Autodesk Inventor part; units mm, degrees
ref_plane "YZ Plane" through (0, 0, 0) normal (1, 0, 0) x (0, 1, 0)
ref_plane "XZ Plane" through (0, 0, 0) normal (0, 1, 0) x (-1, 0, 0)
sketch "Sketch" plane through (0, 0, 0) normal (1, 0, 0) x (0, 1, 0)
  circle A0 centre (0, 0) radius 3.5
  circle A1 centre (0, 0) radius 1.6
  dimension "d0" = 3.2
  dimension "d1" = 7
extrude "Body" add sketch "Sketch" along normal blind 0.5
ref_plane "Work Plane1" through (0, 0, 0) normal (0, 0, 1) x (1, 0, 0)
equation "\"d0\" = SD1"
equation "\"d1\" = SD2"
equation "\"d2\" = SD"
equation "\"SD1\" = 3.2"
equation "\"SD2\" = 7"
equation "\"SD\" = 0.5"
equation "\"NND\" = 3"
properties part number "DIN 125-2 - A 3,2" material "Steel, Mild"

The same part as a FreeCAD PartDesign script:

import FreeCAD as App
import Part
import Sketcher

V = App.Vector

doc = App.newDocument("Part")
body = doc.addObject("PartDesign::Body", "Body")

# Sketch on YZ plane
sketch1 = body.newObject("Sketcher::SketchObject", "Sketch")
sketch1.AttachmentSupport = (doc.getObject("YZ_Plane"), [""])
sketch1.MapMode = "FlatFace"
sketch1.addGeometry([
    Part.Circle(V(0, 0, 0), V(0, 0, 1), 3.5),
    Part.Circle(V(0, 0, 0), V(0, 0, 1), 1.6),
], False)
sketch1.addConstraint([
    Sketcher.Constraint("Coincident", 0, 3, -1, 1),
    Sketcher.Constraint("Coincident", 1, 3, -1, 1),
    Sketcher.Constraint("Diameter", 0, 7.0),
    Sketcher.Constraint("Diameter", 1, 3.2),
])
pad1 = body.newObject("PartDesign::Pad", "Pad")
pad1.Profile = sketch1
pad1.Length = 0.5

doc.recompute()
